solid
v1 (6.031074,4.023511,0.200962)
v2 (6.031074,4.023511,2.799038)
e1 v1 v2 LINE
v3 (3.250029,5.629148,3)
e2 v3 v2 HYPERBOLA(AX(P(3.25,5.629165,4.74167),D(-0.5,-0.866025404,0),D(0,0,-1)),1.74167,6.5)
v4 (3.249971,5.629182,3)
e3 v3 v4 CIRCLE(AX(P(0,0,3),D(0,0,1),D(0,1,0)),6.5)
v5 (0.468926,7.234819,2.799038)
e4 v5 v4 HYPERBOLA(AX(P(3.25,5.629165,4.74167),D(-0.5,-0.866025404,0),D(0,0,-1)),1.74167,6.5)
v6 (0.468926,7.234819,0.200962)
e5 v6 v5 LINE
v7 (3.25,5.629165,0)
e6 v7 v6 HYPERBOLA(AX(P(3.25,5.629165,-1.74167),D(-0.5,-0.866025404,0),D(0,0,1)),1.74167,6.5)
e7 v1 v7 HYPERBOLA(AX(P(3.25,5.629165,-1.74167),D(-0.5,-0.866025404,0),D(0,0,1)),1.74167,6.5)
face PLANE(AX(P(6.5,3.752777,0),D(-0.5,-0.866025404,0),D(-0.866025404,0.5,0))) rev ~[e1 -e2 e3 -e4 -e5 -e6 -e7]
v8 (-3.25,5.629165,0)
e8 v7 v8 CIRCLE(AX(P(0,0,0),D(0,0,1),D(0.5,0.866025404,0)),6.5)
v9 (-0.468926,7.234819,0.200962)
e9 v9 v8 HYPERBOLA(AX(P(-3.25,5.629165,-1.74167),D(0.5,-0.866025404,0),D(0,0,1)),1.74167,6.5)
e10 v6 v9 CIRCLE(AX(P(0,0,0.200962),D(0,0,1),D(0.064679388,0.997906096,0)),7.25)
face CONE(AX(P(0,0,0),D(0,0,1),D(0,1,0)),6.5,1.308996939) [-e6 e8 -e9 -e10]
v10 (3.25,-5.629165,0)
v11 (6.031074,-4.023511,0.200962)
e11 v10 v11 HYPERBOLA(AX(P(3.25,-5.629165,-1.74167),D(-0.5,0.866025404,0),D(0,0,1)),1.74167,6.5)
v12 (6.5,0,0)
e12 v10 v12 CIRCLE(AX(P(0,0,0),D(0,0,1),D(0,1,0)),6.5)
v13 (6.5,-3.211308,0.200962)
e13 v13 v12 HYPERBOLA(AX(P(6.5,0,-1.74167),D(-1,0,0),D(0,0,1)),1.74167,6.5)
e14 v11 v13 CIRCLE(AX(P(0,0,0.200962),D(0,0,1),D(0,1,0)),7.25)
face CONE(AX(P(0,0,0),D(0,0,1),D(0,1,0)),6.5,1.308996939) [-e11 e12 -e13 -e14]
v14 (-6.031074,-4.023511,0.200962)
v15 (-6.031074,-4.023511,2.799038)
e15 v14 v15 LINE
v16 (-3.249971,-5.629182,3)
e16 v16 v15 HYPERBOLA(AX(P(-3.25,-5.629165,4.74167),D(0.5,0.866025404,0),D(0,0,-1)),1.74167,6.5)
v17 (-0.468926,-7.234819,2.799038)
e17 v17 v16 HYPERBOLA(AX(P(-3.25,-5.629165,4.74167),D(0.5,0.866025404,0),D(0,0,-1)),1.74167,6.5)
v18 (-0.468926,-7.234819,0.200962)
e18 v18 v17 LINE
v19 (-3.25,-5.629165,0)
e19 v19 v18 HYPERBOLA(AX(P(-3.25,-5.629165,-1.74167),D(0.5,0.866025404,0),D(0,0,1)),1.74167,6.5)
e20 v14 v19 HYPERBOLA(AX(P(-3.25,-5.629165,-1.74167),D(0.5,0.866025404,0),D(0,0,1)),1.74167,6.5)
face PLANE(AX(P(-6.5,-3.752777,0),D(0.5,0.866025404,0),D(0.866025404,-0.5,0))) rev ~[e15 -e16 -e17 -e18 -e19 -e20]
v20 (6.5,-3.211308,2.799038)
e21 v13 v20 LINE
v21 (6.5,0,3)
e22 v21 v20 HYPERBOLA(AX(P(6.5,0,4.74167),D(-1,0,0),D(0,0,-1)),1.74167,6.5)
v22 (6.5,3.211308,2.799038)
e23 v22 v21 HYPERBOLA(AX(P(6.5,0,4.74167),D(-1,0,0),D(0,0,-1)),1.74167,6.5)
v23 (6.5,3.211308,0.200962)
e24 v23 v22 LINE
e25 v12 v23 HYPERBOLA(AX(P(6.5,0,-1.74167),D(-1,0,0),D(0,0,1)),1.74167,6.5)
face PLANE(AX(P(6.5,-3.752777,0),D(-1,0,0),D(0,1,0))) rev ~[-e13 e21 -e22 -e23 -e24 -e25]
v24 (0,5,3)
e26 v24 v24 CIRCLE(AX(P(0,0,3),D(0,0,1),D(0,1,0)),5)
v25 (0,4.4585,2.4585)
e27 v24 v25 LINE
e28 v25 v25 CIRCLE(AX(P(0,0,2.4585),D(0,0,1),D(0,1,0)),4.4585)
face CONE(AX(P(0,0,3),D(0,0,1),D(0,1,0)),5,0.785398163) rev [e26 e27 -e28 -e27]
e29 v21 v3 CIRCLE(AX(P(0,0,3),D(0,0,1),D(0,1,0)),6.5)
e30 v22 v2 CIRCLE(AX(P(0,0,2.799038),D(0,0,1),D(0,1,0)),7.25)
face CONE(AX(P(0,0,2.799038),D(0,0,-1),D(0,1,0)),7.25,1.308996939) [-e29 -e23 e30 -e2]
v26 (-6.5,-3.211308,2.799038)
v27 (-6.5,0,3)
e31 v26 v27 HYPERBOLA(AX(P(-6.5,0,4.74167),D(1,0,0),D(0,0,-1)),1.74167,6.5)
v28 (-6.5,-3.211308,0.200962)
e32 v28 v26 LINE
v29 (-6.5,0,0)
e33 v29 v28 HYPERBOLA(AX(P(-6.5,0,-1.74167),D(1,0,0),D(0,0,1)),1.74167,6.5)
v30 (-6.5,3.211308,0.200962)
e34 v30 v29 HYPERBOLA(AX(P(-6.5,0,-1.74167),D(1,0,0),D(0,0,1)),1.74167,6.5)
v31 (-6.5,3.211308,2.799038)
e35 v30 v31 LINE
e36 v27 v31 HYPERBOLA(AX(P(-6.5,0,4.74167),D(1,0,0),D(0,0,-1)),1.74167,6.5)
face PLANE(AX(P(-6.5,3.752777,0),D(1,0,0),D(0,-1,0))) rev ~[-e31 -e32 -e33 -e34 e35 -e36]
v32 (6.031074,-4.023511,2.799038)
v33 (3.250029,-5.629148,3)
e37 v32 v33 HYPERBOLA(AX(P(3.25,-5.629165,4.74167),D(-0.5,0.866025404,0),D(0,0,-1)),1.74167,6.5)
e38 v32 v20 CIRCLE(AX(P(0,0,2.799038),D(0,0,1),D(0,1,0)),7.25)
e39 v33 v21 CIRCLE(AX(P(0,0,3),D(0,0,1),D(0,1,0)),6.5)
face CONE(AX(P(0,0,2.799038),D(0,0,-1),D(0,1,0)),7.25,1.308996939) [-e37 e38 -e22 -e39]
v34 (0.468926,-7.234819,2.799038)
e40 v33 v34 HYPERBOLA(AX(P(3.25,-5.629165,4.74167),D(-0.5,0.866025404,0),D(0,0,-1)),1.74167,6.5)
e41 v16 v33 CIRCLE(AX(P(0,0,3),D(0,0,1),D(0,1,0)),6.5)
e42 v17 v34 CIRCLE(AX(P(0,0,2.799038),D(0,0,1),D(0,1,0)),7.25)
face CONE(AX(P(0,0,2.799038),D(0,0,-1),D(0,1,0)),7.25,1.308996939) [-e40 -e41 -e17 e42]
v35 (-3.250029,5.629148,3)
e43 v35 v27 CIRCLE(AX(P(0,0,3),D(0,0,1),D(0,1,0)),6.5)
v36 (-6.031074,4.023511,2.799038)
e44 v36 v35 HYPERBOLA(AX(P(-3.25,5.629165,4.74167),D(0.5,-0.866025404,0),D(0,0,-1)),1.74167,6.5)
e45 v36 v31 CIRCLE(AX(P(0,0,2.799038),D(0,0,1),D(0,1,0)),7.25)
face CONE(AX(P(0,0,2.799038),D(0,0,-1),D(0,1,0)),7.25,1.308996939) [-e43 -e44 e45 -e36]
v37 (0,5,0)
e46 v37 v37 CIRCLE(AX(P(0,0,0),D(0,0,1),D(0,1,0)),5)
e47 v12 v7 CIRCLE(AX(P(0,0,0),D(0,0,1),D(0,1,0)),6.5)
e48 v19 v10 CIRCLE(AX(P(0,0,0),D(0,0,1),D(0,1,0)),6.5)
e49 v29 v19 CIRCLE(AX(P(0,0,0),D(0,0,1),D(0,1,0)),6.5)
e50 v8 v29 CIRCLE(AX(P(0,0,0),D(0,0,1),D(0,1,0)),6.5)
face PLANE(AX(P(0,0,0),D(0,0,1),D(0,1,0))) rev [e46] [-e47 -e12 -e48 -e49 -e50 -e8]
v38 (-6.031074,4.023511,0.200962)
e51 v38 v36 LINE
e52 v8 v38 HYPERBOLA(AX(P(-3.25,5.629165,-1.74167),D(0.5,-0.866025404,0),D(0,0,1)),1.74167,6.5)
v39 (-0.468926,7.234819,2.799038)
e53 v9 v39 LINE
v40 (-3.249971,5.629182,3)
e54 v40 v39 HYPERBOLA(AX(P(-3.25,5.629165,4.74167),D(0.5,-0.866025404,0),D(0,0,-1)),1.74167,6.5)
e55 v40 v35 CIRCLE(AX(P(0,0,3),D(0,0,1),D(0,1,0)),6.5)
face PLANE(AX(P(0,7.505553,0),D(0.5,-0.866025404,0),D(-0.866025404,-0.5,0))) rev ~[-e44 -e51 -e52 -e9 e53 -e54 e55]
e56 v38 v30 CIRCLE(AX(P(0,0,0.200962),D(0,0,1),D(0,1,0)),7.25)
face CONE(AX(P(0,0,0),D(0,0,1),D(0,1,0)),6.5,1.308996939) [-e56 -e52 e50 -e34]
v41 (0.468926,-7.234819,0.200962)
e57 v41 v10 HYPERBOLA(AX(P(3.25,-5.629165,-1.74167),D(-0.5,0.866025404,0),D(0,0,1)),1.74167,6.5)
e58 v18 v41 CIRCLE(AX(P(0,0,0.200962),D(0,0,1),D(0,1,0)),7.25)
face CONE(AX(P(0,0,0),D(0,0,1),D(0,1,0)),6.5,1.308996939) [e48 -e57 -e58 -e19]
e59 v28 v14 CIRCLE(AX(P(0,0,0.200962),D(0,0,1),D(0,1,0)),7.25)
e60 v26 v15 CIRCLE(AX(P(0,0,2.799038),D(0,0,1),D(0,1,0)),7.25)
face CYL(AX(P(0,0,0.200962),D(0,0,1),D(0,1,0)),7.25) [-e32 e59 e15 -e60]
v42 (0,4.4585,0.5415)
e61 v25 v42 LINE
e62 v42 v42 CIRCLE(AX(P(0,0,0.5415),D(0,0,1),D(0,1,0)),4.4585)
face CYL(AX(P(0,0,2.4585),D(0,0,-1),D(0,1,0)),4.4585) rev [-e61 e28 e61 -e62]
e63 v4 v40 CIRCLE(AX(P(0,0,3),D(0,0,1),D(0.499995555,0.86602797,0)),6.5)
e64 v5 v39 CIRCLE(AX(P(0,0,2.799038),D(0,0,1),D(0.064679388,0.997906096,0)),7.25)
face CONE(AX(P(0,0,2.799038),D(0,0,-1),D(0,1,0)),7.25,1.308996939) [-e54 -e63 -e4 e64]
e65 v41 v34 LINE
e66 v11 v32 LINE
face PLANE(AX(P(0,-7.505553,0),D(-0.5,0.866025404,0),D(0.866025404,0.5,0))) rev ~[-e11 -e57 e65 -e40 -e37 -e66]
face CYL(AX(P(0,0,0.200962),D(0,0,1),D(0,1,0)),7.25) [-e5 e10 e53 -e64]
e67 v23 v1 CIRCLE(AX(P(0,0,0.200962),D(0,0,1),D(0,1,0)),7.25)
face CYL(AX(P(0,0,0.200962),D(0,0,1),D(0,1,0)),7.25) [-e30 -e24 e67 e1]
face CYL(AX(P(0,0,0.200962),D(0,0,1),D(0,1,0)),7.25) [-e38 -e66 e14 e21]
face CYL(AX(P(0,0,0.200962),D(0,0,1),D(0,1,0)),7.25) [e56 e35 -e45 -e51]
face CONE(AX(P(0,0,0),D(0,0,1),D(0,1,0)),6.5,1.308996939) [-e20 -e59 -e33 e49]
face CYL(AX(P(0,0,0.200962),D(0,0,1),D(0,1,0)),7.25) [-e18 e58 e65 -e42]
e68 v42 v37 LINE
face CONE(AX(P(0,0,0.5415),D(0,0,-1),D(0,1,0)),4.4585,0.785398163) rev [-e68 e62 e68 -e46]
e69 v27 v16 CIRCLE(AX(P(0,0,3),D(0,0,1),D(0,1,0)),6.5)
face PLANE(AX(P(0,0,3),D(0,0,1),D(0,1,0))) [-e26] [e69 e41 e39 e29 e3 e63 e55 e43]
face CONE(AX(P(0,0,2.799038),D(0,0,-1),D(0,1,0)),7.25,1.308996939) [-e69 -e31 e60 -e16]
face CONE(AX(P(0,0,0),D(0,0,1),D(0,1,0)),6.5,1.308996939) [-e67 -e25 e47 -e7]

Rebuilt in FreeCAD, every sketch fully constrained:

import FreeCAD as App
import Part
import Sketcher

V = App.Vector
Q = App.Units.Quantity


def add_polygon(sketch, points):
    """Adds a closed chain of lines whose ends are joined by coincident constraints."""
    first, n = sketch.GeometryCount, len(points)
    for a, b in zip(points, points[1:] + points[:1]):
        sketch.addGeometry(Part.LineSegment(App.Vector(*a, 0), App.Vector(*b, 0)), False)
    for i in range(n):
        sketch.addConstraint(Sketcher.Constraint("Coincident", first + i, 2, first + (i + 1) % n, 1))

doc = App.newDocument("Part")
body = doc.addObject("PartDesign::Body", "Body")

sketch1 = body.newObject("Sketcher::SketchObject", "Sketch")
sketch1.AttachmentSupport = (doc.getObject("YZ_Plane"), [""])
sketch1.MapMode = "FlatFace"
add_polygon(sketch1, [(6.5, 3), (5, 3), (4.5, 2.5), (4.5, 0.5), (5, 0), (6.5, 0), (7.2, 0.2), (7.2, 2.8)])
sketch1.addConstraint([
    Sketcher.Constraint("Horizontal", 0),
    Sketcher.Constraint("Vertical", 2),
    Sketcher.Constraint("Horizontal", 4),
    Sketcher.Constraint("Vertical", 6),
    Sketcher.Constraint("PointOnObject", 3, 2, -1),
    Sketcher.Constraint("Perpendicular", 1, 3),
    Sketcher.Constraint("Vertical", 0, 2, 3, 2),
    Sketcher.Constraint("Vertical", 4, 2, 7, 2),
    Sketcher.Constraint("Equal", 1, 3),
    Sketcher.Constraint("Equal", 5, 7),
    Sketcher.Constraint("Angle", 5, Q("15 deg")),
    Sketcher.Constraint("DistanceX", 0, 2, 0, 1, 1.5),
    Sketcher.Constraint("DistanceX", -1, 1, 0, 2, 5.0),
    Sketcher.Constraint("DistanceY", -1, 1, 0, 2, 3.0),
    Sketcher.Constraint("DistanceY", 2, 2, 2, 1, 1.917),
    Sketcher.Constraint("DistanceX", -1, 1, 5, 2, 7.25),
])
revolution = body.newObject("PartDesign::Revolution", "Revolution")
revolution.Profile = sketch1
revolution.ReferenceAxis = (sketch1, ["V_Axis"])
revolution.Angle = 360

sketch2 = body.newObject("Sketcher::SketchObject", "Sketch001")
sketch2.AttachmentSupport = (doc.getObject("XY_Plane"), [""])
sketch2.MapMode = "FlatFace"
add_polygon(sketch2, [(-37, 33), (-37, -36), (33, -36), (33, 33)])
add_polygon(sketch2, [(0, -8), (-6, -4), (-6, 4), (0, 8), (6, 4), (6, -4)])
sketch2.addConstraint([
    Sketcher.Constraint("Vertical", 0),
    Sketcher.Constraint("Horizontal", 1),
    Sketcher.Constraint("Vertical", 2),
    Sketcher.Constraint("Horizontal", 3),
    Sketcher.Constraint("Vertical", 5),
    Sketcher.Constraint("Vertical", 8),
    Sketcher.Constraint("Symmetric", 4, 2, 7, 2, -1, 1),
    Sketcher.Constraint("Symmetric", 6, 2, 9, 2, -1, 1),
    Sketcher.Constraint("PointOnObject", 6, 2, -2),
    Sketcher.Constraint("Parallel", 6, 9),
    Sketcher.Constraint("Horizontal", 5, 2, 7, 2),
    Sketcher.Constraint("Angle", 4, Q("150 deg")),
    Sketcher.Constraint("DistanceX", 5, 2, 7, 2, 13.0),
    Sketcher.Constraint("DistanceY", 0, 2, -1, 1, 35.5),
    Sketcher.Constraint("DistanceX", 1, 1, 1, 2, 69.6667),
    Sketcher.Constraint("DistanceY", 0, 2, 0, 1, 68.6667),
    Sketcher.Constraint("DistanceX", 0, 2, -1, 1, 36.5834),
    Sketcher.Constraint("DistanceY", 5, 1, 5, 2, 7.505554),
])
pocket1 = body.newObject("PartDesign::Pocket", "Pocket")
pocket1.Profile = sketch2
pocket1.Type = "ThroughAll"
pocket1.Midplane = True

doc.recompute()
